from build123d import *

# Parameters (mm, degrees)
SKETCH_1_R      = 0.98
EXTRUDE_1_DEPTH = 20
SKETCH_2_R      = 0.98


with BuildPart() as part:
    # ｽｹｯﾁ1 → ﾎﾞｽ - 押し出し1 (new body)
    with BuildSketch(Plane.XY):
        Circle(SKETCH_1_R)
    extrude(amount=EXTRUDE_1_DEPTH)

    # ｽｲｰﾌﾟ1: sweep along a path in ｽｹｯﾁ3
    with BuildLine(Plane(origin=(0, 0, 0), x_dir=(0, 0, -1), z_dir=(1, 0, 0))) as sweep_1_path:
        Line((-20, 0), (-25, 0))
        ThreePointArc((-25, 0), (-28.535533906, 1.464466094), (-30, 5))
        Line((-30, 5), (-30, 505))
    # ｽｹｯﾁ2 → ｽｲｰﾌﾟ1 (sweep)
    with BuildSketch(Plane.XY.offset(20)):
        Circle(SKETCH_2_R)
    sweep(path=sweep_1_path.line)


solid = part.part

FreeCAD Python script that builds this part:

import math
import FreeCAD as App
import Part
import Sketcher
from FreeCAD import Vector
Q = App.Units.Quantity

doc = App.newDocument("Part")
body = doc.addObject("PartDesign::Body", "Body")

sketch1 = body.newObject("Sketcher::SketchObject", "Sketch")
sketch1.AttachmentSupport = (doc.getObject("XY_Plane"), [""])
sketch1.MapMode = "FlatFace"
sketch1.addGeometry(Part.Circle(Vector(0, 0, 0), Vector(0, 0, 1), 0.98), False)
sketch1.addConstraint([
    Sketcher.Constraint("Coincident", 0, 3, -1, 1),
    Sketcher.Constraint("Diameter", 0, Q("1.96 mm")),
])
pad1 = body.newObject("PartDesign::Pad", "Pad")
pad1.Profile = sketch1
pad1.Length = 20

sketch2 = body.newObject("Sketcher::SketchObject", "Sketch001")
sketch2.AttachmentSupport = (doc.getObject("XY_Plane"), [""])
sketch2.MapMode = "FlatFace"
sketch2.AttachmentOffset = App.Placement(Vector(0, 0, 20), App.Rotation())
sketch2.addGeometry(Part.Circle(Vector(0, 0, 0), Vector(0, 0, 1), 0.98), False)
sketch2.addConstraint([
    Sketcher.Constraint("Coincident", 0, 3, -1, 1),
    Sketcher.Constraint("Diameter", 0, Q("1.96 mm")),
])

sketch3 = body.newObject("Sketcher::SketchObject", "Sketch002")
sketch3.AttachmentSupport = (doc.getObject("YZ_Plane"), [""])
sketch3.MapMode = "FlatFace"
sketch3.addGeometry([
    Part.LineSegment(Vector(0, 20, 0), Vector(0, 25, 0)),
    Part.ArcOfCircle(Part.Circle(Vector(5, 25, 0), Vector(0, 0, 1), 5), math.radians(90), math.radians(180)),
    Part.LineSegment(Vector(5, 30, 0), Vector(505, 30, 0)),
], False)
sketch3.addConstraint([
    Sketcher.Constraint("Tangent", 0, 2, 1, 2),
    Sketcher.Constraint("Tangent", 1, 1, 2, 1),
    Sketcher.Constraint("Vertical", 0),
    Sketcher.Constraint("Horizontal", 2),
    Sketcher.Constraint("PointOnObject", 0, 1, -2),
    Sketcher.Constraint("Radius", 1, Q("5 mm")),
    Sketcher.Constraint("DistanceX", 2, 1, 2, 2, Q("500 mm")),
    Sketcher.Constraint("DistanceY", 0, 1, 0, 2, Q("5 mm")),
    Sketcher.Constraint("DistanceY", -1, 1, 1, 3, Q("25 mm")),
])
doc.recompute()

additivepipe = body.newObject("PartDesign::AdditivePipe", "AdditivePipe")
additivepipe.Profile = sketch2
additivepipe.Spine = (sketch3, ["Edge1", "Edge2", "Edge3"])

doc.recompute()
